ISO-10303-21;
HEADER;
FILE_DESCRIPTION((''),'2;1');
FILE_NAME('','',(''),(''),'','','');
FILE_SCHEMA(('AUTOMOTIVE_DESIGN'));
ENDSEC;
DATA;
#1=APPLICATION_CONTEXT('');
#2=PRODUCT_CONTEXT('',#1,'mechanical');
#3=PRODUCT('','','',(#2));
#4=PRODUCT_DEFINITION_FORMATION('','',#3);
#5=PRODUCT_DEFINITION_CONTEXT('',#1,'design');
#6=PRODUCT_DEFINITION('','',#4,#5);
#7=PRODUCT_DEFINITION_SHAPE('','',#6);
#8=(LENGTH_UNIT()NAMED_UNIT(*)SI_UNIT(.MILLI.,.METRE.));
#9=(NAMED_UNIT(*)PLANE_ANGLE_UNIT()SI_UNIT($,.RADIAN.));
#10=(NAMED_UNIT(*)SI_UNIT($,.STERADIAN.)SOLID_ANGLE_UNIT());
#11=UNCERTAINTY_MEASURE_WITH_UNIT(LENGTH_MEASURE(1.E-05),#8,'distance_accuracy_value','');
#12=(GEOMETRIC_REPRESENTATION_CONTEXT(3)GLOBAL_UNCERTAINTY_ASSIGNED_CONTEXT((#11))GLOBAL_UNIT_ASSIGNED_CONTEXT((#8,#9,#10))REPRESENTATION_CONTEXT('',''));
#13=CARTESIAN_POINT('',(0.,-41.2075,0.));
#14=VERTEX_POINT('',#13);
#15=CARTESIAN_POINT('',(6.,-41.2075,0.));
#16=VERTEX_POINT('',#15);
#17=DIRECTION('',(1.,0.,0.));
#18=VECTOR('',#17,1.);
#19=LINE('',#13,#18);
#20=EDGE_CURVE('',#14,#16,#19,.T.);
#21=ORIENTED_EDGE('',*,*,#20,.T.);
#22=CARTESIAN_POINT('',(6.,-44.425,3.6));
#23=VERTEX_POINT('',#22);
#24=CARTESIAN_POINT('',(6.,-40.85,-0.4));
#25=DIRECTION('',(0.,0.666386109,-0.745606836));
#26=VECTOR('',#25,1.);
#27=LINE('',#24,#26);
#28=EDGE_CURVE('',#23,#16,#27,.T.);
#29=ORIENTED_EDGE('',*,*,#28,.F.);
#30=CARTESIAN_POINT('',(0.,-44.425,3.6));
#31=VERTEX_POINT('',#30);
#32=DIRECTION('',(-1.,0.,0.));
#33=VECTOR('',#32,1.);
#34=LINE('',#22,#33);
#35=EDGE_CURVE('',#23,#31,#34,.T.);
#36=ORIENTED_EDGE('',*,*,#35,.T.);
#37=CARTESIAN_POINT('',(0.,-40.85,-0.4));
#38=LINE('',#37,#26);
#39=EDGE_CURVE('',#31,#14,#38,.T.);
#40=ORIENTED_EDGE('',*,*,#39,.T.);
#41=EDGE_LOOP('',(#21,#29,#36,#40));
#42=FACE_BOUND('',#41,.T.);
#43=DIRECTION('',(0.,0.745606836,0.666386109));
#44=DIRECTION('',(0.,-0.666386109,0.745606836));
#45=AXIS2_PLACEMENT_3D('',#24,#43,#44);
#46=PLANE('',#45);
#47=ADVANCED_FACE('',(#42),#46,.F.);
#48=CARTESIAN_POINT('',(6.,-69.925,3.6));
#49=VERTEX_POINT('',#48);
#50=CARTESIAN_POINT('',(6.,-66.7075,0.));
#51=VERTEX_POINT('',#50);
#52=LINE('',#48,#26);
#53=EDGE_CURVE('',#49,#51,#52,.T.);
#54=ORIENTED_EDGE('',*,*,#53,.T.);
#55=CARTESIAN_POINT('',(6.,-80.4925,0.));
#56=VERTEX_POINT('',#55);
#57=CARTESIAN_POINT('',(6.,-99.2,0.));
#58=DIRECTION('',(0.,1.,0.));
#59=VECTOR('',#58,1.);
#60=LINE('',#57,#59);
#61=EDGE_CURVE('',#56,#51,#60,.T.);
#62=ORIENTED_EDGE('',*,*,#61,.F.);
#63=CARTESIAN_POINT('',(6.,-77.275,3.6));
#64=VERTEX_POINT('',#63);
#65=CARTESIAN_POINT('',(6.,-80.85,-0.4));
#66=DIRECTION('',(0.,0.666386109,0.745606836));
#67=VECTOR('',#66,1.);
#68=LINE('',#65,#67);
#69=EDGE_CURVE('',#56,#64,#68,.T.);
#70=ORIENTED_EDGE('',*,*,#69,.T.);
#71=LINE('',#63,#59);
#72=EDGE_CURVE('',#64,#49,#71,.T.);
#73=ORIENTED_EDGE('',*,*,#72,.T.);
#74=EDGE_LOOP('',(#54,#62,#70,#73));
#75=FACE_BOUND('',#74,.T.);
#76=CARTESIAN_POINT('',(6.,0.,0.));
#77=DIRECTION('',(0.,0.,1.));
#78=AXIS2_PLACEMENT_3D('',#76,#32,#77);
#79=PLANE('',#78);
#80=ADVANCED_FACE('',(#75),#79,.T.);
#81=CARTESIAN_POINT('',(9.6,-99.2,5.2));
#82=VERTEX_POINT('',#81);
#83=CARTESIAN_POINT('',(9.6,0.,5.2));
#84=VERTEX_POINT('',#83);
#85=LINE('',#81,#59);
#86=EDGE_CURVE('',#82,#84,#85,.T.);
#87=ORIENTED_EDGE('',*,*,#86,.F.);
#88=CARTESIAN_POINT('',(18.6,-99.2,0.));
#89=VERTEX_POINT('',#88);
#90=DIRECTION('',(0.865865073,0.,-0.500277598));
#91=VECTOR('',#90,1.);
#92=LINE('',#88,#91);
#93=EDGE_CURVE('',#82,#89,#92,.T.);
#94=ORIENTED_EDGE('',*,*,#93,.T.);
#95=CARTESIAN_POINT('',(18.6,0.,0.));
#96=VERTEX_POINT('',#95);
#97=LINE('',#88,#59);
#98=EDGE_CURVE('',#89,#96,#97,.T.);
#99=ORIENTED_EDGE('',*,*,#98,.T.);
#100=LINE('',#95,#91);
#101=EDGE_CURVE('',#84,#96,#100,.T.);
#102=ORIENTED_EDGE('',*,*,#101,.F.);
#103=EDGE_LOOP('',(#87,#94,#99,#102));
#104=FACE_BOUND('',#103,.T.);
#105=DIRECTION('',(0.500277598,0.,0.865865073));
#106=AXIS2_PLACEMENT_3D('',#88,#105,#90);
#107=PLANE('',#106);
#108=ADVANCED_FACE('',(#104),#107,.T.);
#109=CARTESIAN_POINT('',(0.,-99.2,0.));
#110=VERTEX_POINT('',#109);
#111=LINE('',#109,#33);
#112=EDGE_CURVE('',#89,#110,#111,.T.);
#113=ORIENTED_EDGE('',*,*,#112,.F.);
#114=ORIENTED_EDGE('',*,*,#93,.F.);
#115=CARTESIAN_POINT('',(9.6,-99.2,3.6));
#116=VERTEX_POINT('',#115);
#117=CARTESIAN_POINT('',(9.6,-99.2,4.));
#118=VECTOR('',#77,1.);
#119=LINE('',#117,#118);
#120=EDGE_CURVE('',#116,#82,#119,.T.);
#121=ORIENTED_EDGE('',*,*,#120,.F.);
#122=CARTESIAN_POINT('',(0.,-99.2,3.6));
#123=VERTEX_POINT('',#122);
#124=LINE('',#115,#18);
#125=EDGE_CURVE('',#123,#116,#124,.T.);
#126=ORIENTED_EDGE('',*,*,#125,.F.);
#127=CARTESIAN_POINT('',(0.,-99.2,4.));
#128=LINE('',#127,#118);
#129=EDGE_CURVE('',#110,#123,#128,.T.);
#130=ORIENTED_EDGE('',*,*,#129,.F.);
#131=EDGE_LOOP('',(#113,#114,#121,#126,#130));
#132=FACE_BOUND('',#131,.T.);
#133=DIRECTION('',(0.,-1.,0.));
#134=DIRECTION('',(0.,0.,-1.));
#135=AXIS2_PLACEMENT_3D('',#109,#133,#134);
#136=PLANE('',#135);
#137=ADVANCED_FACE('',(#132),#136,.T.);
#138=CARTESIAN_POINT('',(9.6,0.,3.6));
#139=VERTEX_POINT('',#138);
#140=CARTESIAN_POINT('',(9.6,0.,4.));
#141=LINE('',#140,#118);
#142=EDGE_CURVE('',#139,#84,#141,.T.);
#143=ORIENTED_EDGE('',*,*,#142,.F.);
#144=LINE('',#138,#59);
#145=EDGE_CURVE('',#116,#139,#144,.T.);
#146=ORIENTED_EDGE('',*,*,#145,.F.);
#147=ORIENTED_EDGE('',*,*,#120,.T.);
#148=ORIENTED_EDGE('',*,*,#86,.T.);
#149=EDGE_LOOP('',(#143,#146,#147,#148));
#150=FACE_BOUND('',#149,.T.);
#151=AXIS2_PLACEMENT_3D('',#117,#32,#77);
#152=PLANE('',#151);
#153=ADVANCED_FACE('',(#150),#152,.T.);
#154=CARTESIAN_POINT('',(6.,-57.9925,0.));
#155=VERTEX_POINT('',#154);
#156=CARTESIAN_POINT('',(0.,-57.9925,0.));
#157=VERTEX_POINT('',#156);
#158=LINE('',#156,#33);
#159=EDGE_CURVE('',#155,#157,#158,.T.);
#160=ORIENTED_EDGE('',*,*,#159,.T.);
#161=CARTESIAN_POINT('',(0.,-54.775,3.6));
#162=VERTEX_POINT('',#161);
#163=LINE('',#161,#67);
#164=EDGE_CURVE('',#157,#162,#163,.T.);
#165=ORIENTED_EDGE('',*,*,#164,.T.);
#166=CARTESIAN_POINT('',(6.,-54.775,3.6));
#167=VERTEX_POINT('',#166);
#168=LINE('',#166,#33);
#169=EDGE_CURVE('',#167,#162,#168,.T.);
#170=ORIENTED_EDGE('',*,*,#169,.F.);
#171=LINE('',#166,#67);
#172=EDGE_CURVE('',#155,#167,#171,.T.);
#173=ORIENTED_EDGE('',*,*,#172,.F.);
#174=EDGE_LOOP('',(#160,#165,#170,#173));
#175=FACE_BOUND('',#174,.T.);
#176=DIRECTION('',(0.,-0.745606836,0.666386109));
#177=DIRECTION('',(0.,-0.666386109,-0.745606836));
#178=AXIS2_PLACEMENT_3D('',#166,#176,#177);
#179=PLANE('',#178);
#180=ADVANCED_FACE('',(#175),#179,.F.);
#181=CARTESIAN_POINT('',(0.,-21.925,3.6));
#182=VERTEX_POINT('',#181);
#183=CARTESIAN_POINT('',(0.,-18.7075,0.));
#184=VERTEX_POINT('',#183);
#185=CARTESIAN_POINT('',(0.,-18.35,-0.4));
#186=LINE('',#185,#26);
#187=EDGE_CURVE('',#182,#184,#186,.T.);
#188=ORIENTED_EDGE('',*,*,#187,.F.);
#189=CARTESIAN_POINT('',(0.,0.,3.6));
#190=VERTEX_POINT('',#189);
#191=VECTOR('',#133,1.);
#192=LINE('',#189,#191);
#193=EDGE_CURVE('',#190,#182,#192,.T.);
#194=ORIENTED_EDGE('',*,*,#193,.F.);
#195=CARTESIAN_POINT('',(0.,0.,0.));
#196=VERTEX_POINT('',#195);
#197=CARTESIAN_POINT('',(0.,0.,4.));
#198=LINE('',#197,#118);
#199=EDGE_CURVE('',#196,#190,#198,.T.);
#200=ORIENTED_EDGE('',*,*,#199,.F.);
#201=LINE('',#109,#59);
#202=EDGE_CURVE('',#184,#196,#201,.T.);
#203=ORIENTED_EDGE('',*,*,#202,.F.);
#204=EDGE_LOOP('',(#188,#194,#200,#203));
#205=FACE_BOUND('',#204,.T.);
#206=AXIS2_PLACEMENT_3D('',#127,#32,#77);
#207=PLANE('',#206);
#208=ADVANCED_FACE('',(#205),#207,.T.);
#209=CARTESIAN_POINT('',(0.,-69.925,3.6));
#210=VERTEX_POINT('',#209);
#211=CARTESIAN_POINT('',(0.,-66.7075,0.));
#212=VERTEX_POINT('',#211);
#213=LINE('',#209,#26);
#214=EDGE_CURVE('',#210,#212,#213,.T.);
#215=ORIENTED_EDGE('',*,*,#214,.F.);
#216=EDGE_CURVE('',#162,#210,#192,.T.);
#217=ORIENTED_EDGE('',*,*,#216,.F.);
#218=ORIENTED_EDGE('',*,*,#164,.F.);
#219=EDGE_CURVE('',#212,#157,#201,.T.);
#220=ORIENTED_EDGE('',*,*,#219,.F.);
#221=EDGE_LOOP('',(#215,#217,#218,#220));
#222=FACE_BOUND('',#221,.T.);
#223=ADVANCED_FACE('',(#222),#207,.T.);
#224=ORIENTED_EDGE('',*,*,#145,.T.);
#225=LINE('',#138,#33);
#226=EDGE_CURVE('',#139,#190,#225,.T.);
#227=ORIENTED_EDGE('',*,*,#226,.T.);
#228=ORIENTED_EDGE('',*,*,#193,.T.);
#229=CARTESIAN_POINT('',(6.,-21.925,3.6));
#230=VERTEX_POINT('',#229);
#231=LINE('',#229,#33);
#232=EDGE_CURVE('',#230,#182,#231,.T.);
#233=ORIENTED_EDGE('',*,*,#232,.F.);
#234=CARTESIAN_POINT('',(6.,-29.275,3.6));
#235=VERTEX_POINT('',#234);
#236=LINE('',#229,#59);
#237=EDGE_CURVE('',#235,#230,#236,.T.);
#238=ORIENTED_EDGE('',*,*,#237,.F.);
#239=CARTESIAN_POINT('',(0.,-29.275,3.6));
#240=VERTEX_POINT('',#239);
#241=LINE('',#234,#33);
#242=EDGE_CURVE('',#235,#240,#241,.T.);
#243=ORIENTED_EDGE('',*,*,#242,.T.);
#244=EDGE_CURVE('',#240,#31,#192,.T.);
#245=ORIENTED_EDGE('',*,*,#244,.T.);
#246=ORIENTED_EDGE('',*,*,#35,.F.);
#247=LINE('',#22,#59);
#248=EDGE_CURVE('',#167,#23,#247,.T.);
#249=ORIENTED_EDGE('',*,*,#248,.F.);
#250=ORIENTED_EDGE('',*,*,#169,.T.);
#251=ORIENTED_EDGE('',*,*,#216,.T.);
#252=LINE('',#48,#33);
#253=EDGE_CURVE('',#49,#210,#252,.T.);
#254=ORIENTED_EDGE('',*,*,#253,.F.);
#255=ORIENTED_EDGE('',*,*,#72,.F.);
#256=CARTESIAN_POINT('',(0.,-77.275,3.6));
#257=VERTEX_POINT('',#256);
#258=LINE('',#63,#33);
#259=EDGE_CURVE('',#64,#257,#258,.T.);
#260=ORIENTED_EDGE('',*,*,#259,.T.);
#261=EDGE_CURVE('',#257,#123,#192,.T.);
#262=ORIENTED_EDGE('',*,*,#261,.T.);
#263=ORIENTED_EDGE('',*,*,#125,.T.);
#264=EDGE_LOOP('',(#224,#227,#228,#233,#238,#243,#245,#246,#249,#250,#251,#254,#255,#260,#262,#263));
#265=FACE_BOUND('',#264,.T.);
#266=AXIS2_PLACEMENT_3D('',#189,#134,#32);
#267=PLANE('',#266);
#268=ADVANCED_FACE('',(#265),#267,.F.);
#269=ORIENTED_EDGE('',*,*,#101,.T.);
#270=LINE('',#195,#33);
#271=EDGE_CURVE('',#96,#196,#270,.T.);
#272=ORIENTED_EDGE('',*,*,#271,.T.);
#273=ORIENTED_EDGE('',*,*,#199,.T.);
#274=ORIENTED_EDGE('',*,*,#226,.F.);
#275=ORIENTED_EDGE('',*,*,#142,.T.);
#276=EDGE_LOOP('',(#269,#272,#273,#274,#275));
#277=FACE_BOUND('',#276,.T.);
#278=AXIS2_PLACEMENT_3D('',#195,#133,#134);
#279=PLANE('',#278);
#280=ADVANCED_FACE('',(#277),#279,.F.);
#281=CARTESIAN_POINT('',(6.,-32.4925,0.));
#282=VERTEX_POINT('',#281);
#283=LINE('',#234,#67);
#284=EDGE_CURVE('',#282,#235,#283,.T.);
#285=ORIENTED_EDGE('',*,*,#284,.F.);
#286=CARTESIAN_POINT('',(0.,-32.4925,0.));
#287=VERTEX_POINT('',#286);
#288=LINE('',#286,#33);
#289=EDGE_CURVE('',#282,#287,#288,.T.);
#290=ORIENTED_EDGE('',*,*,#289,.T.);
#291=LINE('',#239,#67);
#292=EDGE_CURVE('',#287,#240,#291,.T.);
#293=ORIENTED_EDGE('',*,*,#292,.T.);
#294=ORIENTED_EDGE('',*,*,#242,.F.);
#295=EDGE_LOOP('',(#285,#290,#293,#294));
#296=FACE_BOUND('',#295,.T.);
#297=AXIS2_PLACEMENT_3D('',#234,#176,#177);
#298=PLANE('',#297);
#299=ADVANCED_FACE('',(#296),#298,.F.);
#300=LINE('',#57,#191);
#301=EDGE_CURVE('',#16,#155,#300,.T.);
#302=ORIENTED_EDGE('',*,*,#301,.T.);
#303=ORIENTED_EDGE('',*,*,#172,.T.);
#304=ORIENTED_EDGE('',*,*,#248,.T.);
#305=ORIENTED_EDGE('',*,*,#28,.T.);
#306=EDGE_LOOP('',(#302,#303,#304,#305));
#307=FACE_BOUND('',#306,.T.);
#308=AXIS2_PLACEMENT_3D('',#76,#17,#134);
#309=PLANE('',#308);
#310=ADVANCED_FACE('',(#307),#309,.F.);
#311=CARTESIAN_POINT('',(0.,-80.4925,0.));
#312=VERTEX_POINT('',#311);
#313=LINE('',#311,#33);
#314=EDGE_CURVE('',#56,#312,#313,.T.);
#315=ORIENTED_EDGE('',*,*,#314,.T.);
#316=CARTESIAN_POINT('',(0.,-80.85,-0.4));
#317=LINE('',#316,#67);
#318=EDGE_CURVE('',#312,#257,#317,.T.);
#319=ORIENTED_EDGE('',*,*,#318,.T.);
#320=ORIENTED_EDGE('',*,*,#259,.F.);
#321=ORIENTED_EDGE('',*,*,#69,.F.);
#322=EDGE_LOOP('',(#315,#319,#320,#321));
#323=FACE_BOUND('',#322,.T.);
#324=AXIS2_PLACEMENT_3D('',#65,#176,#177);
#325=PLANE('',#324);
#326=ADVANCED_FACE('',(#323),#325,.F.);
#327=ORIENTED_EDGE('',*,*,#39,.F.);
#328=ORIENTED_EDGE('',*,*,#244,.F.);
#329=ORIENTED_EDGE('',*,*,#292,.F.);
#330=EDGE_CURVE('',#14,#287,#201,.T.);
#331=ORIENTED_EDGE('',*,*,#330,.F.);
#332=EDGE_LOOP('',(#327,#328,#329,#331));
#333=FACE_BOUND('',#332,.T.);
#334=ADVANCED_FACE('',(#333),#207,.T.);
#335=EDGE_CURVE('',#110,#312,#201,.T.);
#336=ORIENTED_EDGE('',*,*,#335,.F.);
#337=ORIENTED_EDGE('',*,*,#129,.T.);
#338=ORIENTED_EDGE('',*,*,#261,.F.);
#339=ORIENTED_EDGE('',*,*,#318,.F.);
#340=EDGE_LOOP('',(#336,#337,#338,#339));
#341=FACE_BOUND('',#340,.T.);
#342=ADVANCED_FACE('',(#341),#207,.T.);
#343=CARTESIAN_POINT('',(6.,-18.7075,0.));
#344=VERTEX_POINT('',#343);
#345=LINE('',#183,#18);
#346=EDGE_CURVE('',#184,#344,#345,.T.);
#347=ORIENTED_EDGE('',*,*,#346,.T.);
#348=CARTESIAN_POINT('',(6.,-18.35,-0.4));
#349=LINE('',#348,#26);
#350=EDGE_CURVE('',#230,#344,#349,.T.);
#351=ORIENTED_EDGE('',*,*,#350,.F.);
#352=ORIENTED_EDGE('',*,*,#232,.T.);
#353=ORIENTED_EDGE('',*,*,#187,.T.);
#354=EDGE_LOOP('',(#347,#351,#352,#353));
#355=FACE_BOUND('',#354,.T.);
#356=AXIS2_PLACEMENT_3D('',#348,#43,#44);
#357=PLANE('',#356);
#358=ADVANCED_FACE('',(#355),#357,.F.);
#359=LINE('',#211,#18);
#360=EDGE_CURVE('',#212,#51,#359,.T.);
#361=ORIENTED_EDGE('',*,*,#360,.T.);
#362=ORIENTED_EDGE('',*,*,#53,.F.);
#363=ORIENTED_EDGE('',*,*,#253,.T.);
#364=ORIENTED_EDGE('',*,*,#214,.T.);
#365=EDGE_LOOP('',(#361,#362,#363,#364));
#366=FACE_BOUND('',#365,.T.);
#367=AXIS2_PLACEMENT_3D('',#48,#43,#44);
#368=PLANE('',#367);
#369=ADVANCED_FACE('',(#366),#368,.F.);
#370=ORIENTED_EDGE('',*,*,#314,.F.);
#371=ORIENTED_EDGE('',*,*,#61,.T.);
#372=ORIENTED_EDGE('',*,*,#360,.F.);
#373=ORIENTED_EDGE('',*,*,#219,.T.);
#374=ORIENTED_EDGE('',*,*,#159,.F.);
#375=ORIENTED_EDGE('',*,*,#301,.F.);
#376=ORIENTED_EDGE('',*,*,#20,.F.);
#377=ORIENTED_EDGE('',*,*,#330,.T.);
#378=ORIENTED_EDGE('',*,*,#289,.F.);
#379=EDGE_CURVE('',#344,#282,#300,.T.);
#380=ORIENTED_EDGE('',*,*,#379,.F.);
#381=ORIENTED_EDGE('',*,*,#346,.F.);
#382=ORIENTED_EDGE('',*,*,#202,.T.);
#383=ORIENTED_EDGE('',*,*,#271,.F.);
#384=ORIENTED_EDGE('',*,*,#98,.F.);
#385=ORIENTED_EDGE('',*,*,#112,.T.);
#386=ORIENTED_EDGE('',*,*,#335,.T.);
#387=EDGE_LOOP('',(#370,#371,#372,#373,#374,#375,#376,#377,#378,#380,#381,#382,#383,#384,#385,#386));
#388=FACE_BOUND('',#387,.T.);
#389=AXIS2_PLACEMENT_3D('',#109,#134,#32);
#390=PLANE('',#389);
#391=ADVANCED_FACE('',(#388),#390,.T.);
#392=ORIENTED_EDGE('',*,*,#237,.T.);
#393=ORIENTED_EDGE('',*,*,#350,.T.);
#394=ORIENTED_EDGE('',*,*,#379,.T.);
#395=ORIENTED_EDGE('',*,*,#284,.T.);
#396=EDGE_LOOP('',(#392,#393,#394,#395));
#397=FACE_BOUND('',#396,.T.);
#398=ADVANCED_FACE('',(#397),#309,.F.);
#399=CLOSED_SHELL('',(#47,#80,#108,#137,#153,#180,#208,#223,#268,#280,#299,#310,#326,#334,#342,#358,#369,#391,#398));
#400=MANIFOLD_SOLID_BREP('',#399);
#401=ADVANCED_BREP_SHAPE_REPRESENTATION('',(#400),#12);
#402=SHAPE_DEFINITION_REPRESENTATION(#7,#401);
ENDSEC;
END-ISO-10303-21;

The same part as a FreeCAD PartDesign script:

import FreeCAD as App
import Part
import Sketcher

V = App.Vector

doc = App.newDocument("Part")
body = doc.addObject("PartDesign::Body", "Body")

# Sketch on XZ plane
sketch1 = body.newObject("Sketcher::SketchObject", "Sketch")
sketch1.AttachmentSupport = (doc.getObject("XZ_Plane"), [""])
sketch1.MapMode = "FlatFace"
sketch1.addGeometry([
    Part.LineSegment(V(18.6, 0, 0), V(0, 0, 0)),  # 0
    Part.LineSegment(V(0, 0, 0), V(0, 4, 0)),  # 1
    Part.LineSegment(V(0, 4, 0), V(9.6, 4, 0)),  # 2
    Part.LineSegment(V(9.6, 4, 0), V(9.6, 5.2, 0)),  # 3
    Part.LineSegment(V(9.6, 5.2, 0), V(18.6, 0, 0)),  # 4
], False)
sketch1.addConstraint([
    Sketcher.Constraint("Coincident", 0, 2, 1, 1),
    Sketcher.Constraint("Coincident", 1, 2, 2, 1),
    Sketcher.Constraint("Coincident", 2, 2, 3, 1),
    Sketcher.Constraint("Coincident", 3, 2, 4, 1),
    Sketcher.Constraint("Coincident", 4, 2, 0, 1),
    Sketcher.Constraint("Horizontal", 0),
    Sketcher.Constraint("Vertical", 1),
    Sketcher.Constraint("Horizontal", 2),
    Sketcher.Constraint("Vertical", 3),
    Sketcher.Constraint("Coincident", 0, 2, -1, 1),
    Sketcher.Constraint("DistanceY", 1, 1, 1, 2, 4.0),
    Sketcher.Constraint("DistanceX", 0, 2, 0, 1, 18.6),
    Sketcher.Constraint("DistanceX", 2, 1, 2, 2, 9.6),
    Sketcher.Constraint("DistanceY", 3, 1, 3, 2, 1.2),
])
pad1 = body.newObject("PartDesign::Pad", "Pad")
pad1.Profile = sketch1
pad1.Length = 99.2

# Sketch on YZ plane
sketch2 = body.newObject("Sketcher::SketchObject", "Sketch001")
sketch2.AttachmentSupport = (doc.getObject("YZ_Plane"), [""])
sketch2.MapMode = "FlatFace"
sketch2.addGeometry([
    Part.LineSegment(V(-21.925, 3.6, 0), V(-18.35, -0.4, 0)),  # 0
    Part.LineSegment(V(-18.35, -0.4, 0), V(-32.85, -0.4, 0)),  # 1
    Part.LineSegment(V(-32.85, -0.4, 0), V(-29.275, 3.6, 0)),  # 2
    Part.LineSegment(V(-29.275, 3.6, 0), V(-21.925, 3.6, 0)),  # 3
    Part.LineSegment(V(-44.425, 3.6, 0), V(-40.85, -0.4, 0)),  # 4
    Part.LineSegment(V(-40.85, -0.4, 0), V(-58.35, -0.4, 0)),  # 5
    Part.LineSegment(V(-58.35, -0.4, 0), V(-54.775, 3.6, 0)),  # 6
    Part.LineSegment(V(-54.775, 3.6, 0), V(-44.425, 3.6, 0)),  # 7
    Part.LineSegment(V(-69.925, 3.6, 0), V(-66.35, -0.4, 0)),  # 8
    Part.LineSegment(V(-66.35, -0.4, 0), V(-80.85, -0.4, 0)),  # 9
    Part.LineSegment(V(-80.85, -0.4, 0), V(-77.275, 3.6, 0)),  # 10
    Part.LineSegment(V(-77.275, 3.6, 0), V(-69.925, 3.6, 0)),  # 11
], False)
sketch2.addConstraint([
    Sketcher.Constraint("Coincident", 0, 2, 1, 1),
    Sketcher.Constraint("Coincident", 1, 2, 2, 1),
    Sketcher.Constraint("Coincident", 2, 2, 3, 1),
    Sketcher.Constraint("Coincident", 3, 2, 0, 1),
    Sketcher.Constraint("Coincident", 4, 2, 5, 1),
    Sketcher.Constraint("Coincident", 5, 2, 6, 1),
    Sketcher.Constraint("Coincident", 6, 2, 7, 1),
    Sketcher.Constraint("Coincident", 7, 2, 4, 1),
    Sketcher.Constraint("Coincident", 8, 2, 9, 1),
    Sketcher.Constraint("Coincident", 9, 2, 10, 1),
    Sketcher.Constraint("Coincident", 10, 2, 11, 1),
    Sketcher.Constraint("Coincident", 11, 2, 8, 1),
    Sketcher.Constraint("Horizontal", 1),
    Sketcher.Constraint("Horizontal", 3),
    Sketcher.Constraint("Horizontal", 5),
    Sketcher.Constraint("Horizontal", 7),
    Sketcher.Constraint("Horizontal", 9),
    Sketcher.Constraint("Horizontal", 11),
    Sketcher.Constraint("Parallel", 0, 4),
    Sketcher.Constraint("Parallel", 2, 6),
    Sketcher.Constraint("Parallel", 4, 8),
    Sketcher.Constraint("Parallel", 6, 10),
    Sketcher.Constraint("Horizontal", 1, 2, 4, 2),
    Sketcher.Constraint("Horizontal", 3, 2, 6, 2),
    Sketcher.Constraint("Horizontal", 5, 2, 8, 2),
    Sketcher.Constraint("Horizontal", 7, 2, 10, 2),
    Sketcher.Constraint("Equal", 1, 9),
    Sketcher.Constraint("Equal", 0, 2),
    Sketcher.Constraint("DistanceX", 1, 2, 1, 1, 14.5),
    Sketcher.Constraint("DistanceX", 5, 2, 5, 1, 17.5),
    Sketcher.Constraint("DistanceY", 1, 2, 2, 2, 4.0),
    Sketcher.Constraint("DistanceX", 4, 2, 1, 2, 8.0),
    Sketcher.Constraint("DistanceX", 8, 2, 5, 2, 8.0),
    Sketcher.Constraint("DistanceX", 3, 1, 3, 2, 7.35),
    Sketcher.Constraint("DistanceY", 0, 2, -1, 1, 0.4),
    Sketcher.Constraint("DistanceX", 0, 2, -1, 1, 18.35),
])
pocket1 = body.newObject("PartDesign::Pocket", "Pocket")
pocket1.Profile = sketch2
pocket1.Length = 6
pocket1.Reversed = True

# Sketch on XY plane
sketch3 = body.newObject("Sketcher::SketchObject", "Sketch002")
sketch3.AttachmentSupport = (doc.getObject("XY_Plane"), [""])
sketch3.MapMode = "FlatFace"
sketch3.AttachmentOffset = App.Placement(V(0, 0, 4), App.Rotation())
sketch3.addGeometry([
    Part.LineSegment(V(0, 0, 0), V(0, -99.2, 0)),
    Part.LineSegment(V(0, -99.2, 0), V(9.6, -99.2, 0)),
    Part.LineSegment(V(9.6, -99.2, 0), V(9.6, 0, 0)),
    Part.LineSegment(V(9.6, 0, 0), V(0, 0, 0)),
], False)
sketch3.addConstraint([
    Sketcher.Constraint("Coincident", 0, 2, 1, 1),
    Sketcher.Constraint("Coincident", 1, 2, 2, 1),
    Sketcher.Constraint("Coincident", 2, 2, 3, 1),
    Sketcher.Constraint("Coincident", 3, 2, 0, 1),
    Sketcher.Constraint("Vertical", 0),
    Sketcher.Constraint("Horizontal", 1),
    Sketcher.Constraint("Vertical", 2),
    Sketcher.Constraint("Horizontal", 3),
    Sketcher.Constraint("Coincident", 3, 2, -1, 1),
    Sketcher.Constraint("DistanceX", 1, 1, 1, 2, 9.6),
    Sketcher.Constraint("DistanceY", 0, 2, 0, 1, 99.2),
])
pocket2 = body.newObject("PartDesign::Pocket", "Pocket001")
pocket2.Profile = sketch3
pocket2.Length = 0.4

doc.recompute()
